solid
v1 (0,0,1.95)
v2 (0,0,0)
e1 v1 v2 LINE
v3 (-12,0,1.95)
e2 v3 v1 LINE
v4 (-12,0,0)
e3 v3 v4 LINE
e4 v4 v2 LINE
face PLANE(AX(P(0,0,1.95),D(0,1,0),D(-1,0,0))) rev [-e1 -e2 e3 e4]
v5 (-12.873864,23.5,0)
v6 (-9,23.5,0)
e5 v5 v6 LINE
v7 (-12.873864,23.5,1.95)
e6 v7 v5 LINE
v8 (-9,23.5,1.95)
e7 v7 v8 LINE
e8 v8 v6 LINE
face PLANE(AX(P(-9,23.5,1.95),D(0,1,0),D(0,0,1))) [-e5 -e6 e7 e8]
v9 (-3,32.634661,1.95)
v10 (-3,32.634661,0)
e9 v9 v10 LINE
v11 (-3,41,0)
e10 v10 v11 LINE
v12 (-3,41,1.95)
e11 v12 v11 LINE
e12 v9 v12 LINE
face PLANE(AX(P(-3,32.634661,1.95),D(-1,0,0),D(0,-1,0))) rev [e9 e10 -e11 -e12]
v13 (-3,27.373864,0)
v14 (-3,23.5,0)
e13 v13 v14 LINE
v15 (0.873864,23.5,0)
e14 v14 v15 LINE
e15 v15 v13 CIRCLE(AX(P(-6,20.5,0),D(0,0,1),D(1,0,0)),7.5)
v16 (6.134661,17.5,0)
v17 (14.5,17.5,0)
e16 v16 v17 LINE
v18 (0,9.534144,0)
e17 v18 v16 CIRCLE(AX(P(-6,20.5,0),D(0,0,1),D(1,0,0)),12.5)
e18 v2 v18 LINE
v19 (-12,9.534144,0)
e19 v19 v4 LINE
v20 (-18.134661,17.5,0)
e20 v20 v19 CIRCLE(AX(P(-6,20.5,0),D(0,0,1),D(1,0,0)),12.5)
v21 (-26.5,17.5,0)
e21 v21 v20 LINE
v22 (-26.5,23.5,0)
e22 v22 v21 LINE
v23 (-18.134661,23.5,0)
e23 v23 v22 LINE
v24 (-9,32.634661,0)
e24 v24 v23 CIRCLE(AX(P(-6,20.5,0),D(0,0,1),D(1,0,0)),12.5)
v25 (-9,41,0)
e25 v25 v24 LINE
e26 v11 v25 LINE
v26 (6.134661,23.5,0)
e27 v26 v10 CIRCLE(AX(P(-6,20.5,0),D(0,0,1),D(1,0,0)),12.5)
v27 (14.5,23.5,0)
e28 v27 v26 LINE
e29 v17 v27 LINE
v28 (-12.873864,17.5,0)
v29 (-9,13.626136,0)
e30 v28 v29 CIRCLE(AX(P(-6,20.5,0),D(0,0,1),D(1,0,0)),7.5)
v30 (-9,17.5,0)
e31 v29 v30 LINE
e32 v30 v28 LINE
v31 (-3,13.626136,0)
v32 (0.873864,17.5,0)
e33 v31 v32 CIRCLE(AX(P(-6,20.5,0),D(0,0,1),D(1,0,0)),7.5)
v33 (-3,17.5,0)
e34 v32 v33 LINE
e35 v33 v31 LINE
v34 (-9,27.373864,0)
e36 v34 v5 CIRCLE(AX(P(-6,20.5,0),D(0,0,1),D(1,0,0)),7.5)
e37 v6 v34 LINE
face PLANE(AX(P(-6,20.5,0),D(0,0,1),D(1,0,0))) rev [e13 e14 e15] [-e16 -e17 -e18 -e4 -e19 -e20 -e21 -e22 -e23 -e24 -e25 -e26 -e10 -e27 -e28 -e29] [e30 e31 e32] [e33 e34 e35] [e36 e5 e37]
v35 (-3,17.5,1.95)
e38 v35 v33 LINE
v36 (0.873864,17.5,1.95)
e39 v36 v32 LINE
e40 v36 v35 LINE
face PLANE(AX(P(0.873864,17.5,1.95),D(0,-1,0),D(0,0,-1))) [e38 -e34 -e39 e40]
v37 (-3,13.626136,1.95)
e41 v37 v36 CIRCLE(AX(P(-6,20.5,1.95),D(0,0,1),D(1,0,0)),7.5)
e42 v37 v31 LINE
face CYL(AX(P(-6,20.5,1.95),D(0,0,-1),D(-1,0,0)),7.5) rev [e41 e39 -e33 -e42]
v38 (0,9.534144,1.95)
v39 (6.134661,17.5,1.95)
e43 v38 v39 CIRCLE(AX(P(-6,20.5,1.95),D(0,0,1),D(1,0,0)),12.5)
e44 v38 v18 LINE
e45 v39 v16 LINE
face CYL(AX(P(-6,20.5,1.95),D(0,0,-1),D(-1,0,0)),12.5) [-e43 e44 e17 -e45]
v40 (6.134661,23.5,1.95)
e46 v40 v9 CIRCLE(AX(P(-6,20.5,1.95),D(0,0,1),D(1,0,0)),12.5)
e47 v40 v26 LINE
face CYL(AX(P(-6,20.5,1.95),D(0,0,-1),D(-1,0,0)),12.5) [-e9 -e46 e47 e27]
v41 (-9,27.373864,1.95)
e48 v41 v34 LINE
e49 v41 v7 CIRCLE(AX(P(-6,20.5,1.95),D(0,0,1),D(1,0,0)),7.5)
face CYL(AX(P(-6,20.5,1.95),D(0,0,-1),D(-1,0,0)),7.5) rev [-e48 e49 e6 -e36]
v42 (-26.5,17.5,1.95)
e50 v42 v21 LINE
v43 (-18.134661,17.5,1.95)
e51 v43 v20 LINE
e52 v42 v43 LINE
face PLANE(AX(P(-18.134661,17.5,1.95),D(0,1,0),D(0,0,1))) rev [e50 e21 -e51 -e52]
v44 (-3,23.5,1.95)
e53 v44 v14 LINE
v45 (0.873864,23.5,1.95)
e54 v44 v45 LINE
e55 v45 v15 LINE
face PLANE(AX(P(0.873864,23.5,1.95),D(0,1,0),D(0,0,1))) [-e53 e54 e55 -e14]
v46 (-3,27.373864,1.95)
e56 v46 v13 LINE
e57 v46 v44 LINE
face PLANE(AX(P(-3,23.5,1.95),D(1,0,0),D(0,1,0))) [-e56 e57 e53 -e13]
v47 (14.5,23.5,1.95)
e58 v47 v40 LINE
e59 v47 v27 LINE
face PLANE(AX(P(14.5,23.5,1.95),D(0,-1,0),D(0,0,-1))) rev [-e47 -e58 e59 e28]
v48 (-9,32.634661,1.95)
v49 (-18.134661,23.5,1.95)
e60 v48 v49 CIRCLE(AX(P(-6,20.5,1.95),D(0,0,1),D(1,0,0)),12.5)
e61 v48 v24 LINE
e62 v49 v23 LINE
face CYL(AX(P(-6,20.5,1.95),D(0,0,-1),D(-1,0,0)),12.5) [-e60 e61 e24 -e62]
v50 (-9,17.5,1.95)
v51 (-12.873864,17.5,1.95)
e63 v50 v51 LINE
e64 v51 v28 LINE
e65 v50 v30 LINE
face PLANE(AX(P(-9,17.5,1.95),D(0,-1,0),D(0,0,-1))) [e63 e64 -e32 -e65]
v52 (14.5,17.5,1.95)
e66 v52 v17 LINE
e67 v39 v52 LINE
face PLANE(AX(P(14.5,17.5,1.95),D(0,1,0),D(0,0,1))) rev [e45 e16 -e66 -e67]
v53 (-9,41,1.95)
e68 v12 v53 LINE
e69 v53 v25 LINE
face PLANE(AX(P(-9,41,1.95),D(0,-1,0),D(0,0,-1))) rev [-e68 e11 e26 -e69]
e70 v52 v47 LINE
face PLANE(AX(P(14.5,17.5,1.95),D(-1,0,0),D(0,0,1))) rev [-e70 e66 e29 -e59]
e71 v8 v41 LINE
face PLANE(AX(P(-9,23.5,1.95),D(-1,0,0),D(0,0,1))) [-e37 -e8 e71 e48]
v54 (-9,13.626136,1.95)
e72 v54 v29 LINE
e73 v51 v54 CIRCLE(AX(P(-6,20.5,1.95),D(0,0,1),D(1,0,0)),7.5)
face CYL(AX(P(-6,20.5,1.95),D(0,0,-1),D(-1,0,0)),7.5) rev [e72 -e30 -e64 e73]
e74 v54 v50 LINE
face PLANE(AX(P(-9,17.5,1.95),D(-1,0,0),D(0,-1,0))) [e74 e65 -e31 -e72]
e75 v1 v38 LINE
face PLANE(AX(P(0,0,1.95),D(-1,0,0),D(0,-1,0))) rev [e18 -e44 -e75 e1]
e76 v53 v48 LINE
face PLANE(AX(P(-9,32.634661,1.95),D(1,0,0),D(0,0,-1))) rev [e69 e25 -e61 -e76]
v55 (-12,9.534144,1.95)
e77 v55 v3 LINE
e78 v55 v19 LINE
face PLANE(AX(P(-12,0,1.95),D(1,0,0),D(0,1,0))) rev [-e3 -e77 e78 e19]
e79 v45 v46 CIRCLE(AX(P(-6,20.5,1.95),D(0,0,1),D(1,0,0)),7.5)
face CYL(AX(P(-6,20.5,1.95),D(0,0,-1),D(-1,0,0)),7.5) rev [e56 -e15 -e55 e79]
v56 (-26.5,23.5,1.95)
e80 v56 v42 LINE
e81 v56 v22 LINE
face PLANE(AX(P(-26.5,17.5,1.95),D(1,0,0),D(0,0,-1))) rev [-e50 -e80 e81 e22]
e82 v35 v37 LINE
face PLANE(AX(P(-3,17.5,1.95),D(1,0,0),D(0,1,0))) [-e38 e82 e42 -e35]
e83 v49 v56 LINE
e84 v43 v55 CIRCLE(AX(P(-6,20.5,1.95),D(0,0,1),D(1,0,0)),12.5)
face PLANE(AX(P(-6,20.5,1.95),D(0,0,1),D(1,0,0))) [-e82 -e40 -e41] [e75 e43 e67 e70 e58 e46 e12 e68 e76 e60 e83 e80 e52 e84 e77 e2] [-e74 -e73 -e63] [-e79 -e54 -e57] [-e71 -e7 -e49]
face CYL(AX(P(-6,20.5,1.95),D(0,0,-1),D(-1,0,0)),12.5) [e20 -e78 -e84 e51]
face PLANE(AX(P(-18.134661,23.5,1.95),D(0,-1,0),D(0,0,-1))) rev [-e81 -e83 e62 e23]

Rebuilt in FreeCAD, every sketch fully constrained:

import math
import FreeCAD as App
import Part
import Sketcher
from FreeCAD import Vector
Q = App.Units.Quantity


def add_polygon(sketch, points):
    """Adds a closed chain of lines whose ends are joined by coincident constraints."""
    first, n = sketch.GeometryCount, len(points)
    for a, b in zip(points, points[1:] + points[:1]):
        sketch.addGeometry(Part.LineSegment(App.Vector(*a, 0), App.Vector(*b, 0)), False)
    for i in range(n):
        sketch.addConstraint(Sketcher.Constraint("Coincident", first + i, 2, first + (i + 1) % n, 1))

doc = App.newDocument("Part")
body = doc.addObject("PartDesign::Body", "Body")

# Sketch on XY plane
sketch1 = body.newObject("Sketcher::SketchObject", "Sketch")
sketch1.AttachmentSupport = (doc.getObject("XY_Plane"), [""])
sketch1.MapMode = "FlatFace"
sketch1.addGeometry(Part.LineSegment(Vector(-12, 0, 0), Vector(0, 0, 0)), False)
sketch1.addGeometry(Part.LineSegment(Vector(0, 0, 0), Vector(0, 9.534144, 0)), False)
sketch1.addGeometry(Part.ArcOfCircle(Part.Circle(Vector(-6, 20.5, 0), Vector(0, 0, 1), 12.5), math.radians(-61.314598), math.radians(-13.88654)), False)
sketch1.addGeometry(Part.LineSegment(Vector(6.134661, 17.5, 0), Vector(14.5, 17.5, 0)), False)
sketch1.addGeometry(Part.LineSegment(Vector(14.5, 17.5, 0), Vector(14.5, 23.5, 0)), False)
sketch1.addGeometry(Part.LineSegment(Vector(14.5, 23.5, 0), Vector(6.134661, 23.5, 0)), False)
sketch1.addGeometry(Part.ArcOfCircle(Part.Circle(Vector(-6, 20.5, 0), Vector(0, 0, 1), 12.5), math.radians(13.88654), math.radians(76.11346)), False)
sketch1.addGeometry(Part.LineSegment(Vector(-3, 32.634661, 0), Vector(-3, 41, 0)), False)
sketch1.addGeometry(Part.LineSegment(Vector(-3, 41, 0), Vector(-9, 41, 0)), False)
sketch1.addGeometry(Part.LineSegment(Vector(-9, 41, 0), Vector(-9, 32.634661, 0)), False)
sketch1.addGeometry(Part.ArcOfCircle(Part.Circle(Vector(-6, 20.5, 0), Vector(0, 0, 1), 12.5), math.radians(103.88654), math.radians(166.11346)), False)
sketch1.addGeometry(Part.LineSegment(Vector(-18.134661, 23.5, 0), Vector(-26.5, 23.5, 0)), False)
sketch1.addGeometry(Part.LineSegment(Vector(-26.5, 23.5, 0), Vector(-26.5, 17.5, 0)), False)
sketch1.addGeometry(Part.LineSegment(Vector(-26.5, 17.5, 0), Vector(-18.134661, 17.5, 0)), False)
sketch1.addGeometry(Part.ArcOfCircle(Part.Circle(Vector(-6, 20.5, 0), Vector(0, 0, 1), 12.5), math.radians(-166.11346), math.radians(-118.685402)), False)
sketch1.addGeometry(Part.LineSegment(Vector(-12, 9.534144, 0), Vector(-12, 0, 0)), False)
sketch1.addGeometry(Part.LineSegment(Vector(-3, 17.5, 0), Vector(0.873864, 17.5, 0)), False)
sketch1.addGeometry(Part.ArcOfCircle(Part.Circle(Vector(-6, 20.5, 0), Vector(0, 0, 1), 7.5), math.radians(-66.421822), math.radians(-23.578178)), False)
sketch1.addGeometry(Part.LineSegment(Vector(-3, 13.626136, 0), Vector(-3, 17.5, 0)), False)
sketch1.addGeometry(Part.LineSegment(Vector(-9, 17.5, 0), Vector(-9, 13.626136, 0)), False)
sketch1.addGeometry(Part.ArcOfCircle(Part.Circle(Vector(-6, 20.5, 0), Vector(0, 0, 1), 7.5), math.radians(-156.421822), math.radians(-113.578178)), False)
sketch1.addGeometry(Part.LineSegment(Vector(-12.873864, 17.5, 0), Vector(-9, 17.5, 0)), False)
sketch1.addGeometry(Part.LineSegment(Vector(-3, 23.5, 0), Vector(-3, 27.373864, 0)), False)
sketch1.addGeometry(Part.ArcOfCircle(Part.Circle(Vector(-6, 20.5, 0), Vector(0, 0, 1), 7.5), math.radians(23.578178), math.radians(66.421822)), False)
sketch1.addGeometry(Part.LineSegment(Vector(0.873864, 23.5, 0), Vector(-3, 23.5, 0)), False)
sketch1.addGeometry(Part.LineSegment(Vector(-9, 23.5, 0), Vector(-12.873864, 23.5, 0)), False)
sketch1.addGeometry(Part.ArcOfCircle(Part.Circle(Vector(-6, 20.5, 0), Vector(0, 0, 1), 7.5), math.radians(113.578178), math.radians(156.421822)), False)
sketch1.addGeometry(Part.LineSegment(Vector(-9, 27.373864, 0), Vector(-9, 23.5, 0)), False)
sketch1.addConstraint(Sketcher.Constraint("Coincident", 0, 2, 1, 1))
sketch1.addConstraint(Sketcher.Constraint("Coincident", 1, 2, 2, 1))
sketch1.addConstraint(Sketcher.Constraint("Coincident", 2, 2, 3, 1))
sketch1.addConstraint(Sketcher.Constraint("Coincident", 3, 2, 4, 1))
sketch1.addConstraint(Sketcher.Constraint("Coincident", 4, 2, 5, 1))
sketch1.addConstraint(Sketcher.Constraint("Coincident", 5, 2, 6, 1))
sketch1.addConstraint(Sketcher.Constraint("Coincident", 6, 2, 7, 1))
sketch1.addConstraint(Sketcher.Constraint("Coincident", 7, 2, 8, 1))
sketch1.addConstraint(Sketcher.Constraint("Coincident", 8, 2, 9, 1))
sketch1.addConstraint(Sketcher.Constraint("Coincident", 9, 2, 10, 1))
sketch1.addConstraint(Sketcher.Constraint("Coincident", 10, 2, 11, 1))
sketch1.addConstraint(Sketcher.Constraint("Coincident", 11, 2, 12, 1))
sketch1.addConstraint(Sketcher.Constraint("Coincident", 12, 2, 13, 1))
sketch1.addConstraint(Sketcher.Constraint("Coincident", 13, 2, 14, 1))
sketch1.addConstraint(Sketcher.Constraint("Coincident", 14, 2, 15, 1))
sketch1.addConstraint(Sketcher.Constraint("Coincident", 15, 2, 0, 1))
sketch1.addConstraint(Sketcher.Constraint("Coincident", 16, 2, 17, 2))
sketch1.addConstraint(Sketcher.Constraint("Coincident", 17, 1, 18, 1))
sketch1.addConstraint(Sketcher.Constraint("Coincident", 18, 2, 16, 1))
sketch1.addConstraint(Sketcher.Constraint("Coincident", 19, 2, 20, 2))
sketch1.addConstraint(Sketcher.Constraint("Coincident", 20, 1, 21, 1))
sketch1.addConstraint(Sketcher.Constraint("Coincident", 21, 2, 19, 1))
sketch1.addConstraint(Sketcher.Constraint("Coincident", 22, 2, 23, 2))
sketch1.addConstraint(Sketcher.Constraint("Coincident", 23, 1, 24, 1))
sketch1.addConstraint(Sketcher.Constraint("Coincident", 24, 2, 22, 1))
sketch1.addConstraint(Sketcher.Constraint("Coincident", 25, 2, 26, 2))
sketch1.addConstraint(Sketcher.Constraint("Coincident", 26, 1, 27, 1))
sketch1.addConstraint(Sketcher.Constraint("Coincident", 27, 2, 25, 1))
sketch1.addConstraint(Sketcher.Constraint("Horizontal", 0))
sketch1.addConstraint(Sketcher.Constraint("Vertical", 1))
sketch1.addConstraint(Sketcher.Constraint("Horizontal", 3))
sketch1.addConstraint(Sketcher.Constraint("Vertical", 4))
sketch1.addConstraint(Sketcher.Constraint("Horizontal", 5))
sketch1.addConstraint(Sketcher.Constraint("Vertical", 7))
sketch1.addConstraint(Sketcher.Constraint("Horizontal", 8))
sketch1.addConstraint(Sketcher.Constraint("Vertical", 9))
sketch1.addConstraint(Sketcher.Constraint("Horizontal", 11))
sketch1.addConstraint(Sketcher.Constraint("Vertical", 12))
sketch1.addConstraint(Sketcher.Constraint("Horizontal", 13))
sketch1.addConstraint(Sketcher.Constraint("Vertical", 15))
sketch1.addConstraint(Sketcher.Constraint("Horizontal", 16))
sketch1.addConstraint(Sketcher.Constraint("Vertical", 18))
sketch1.addConstraint(Sketcher.Constraint("Vertical", 19))
sketch1.addConstraint(Sketcher.Constraint("Horizontal", 21))
sketch1.addConstraint(Sketcher.Constraint("Vertical", 22))
sketch1.addConstraint(Sketcher.Constraint("Horizontal", 24))
sketch1.addConstraint(Sketcher.Constraint("Horizontal", 25))
sketch1.addConstraint(Sketcher.Constraint("Vertical", 27))
sketch1.addConstraint(Sketcher.Constraint("Coincident", 0, 2, -1, 1))
sketch1.addConstraint(Sketcher.Constraint("Coincident", 6, 3, 2, 3))
sketch1.addConstraint(Sketcher.Constraint("Coincident", 10, 3, 2, 3))
sketch1.addConstraint(Sketcher.Constraint("Coincident", 14, 3, 2, 3))
sketch1.addConstraint(Sketcher.Constraint("Coincident", 17, 3, 2, 3))
sketch1.addConstraint(Sketcher.Constraint("Coincident", 20, 3, 2, 3))
sketch1.addConstraint(Sketcher.Constraint("Coincident", 23, 3, 2, 3))
sketch1.addConstraint(Sketcher.Constraint("Coincident", 26, 3, 2, 3))
sketch1.addConstraint(Sketcher.Constraint("Equal", 2, 6))
sketch1.addConstraint(Sketcher.Constraint("Equal", 6, 10))
sketch1.addConstraint(Sketcher.Constraint("Equal", 10, 14))
sketch1.addConstraint(Sketcher.Constraint("Equal", 17, 20))
sketch1.addConstraint(Sketcher.Constraint("Equal", 20, 23))
sketch1.addConstraint(Sketcher.Constraint("Equal", 23, 26))
sketch1.addConstraint(Sketcher.Constraint("Horizontal", 6, 2, 9, 2))
sketch1.addConstraint(Sketcher.Constraint("Horizontal", 5, 2, 10, 2))
sketch1.addConstraint(Sketcher.Constraint("Horizontal", 3, 2, 12, 2))
sketch1.addConstraint(Sketcher.Constraint("Horizontal", 1, 2, 14, 2))
sketch1.addConstraint(Sketcher.Constraint("Horizontal", 13, 2, 16, 2))
sketch1.addConstraint(Sketcher.Constraint("Horizontal", 17, 1, 19, 2))
sketch1.addConstraint(Sketcher.Constraint("Horizontal", 18, 2, 20, 1))
sketch1.addConstraint(Sketcher.Constraint("Horizontal", 11, 2, 23, 1))
sketch1.addConstraint(Sketcher.Constraint("Horizontal", 24, 2, 25, 2))
sketch1.addConstraint(Sketcher.Constraint("Horizontal", 22, 2, 26, 1))
sketch1.addConstraint(Sketcher.Constraint("Vertical", 2, 2, 5, 2))
sketch1.addConstraint(Sketcher.Constraint("Vertical", 7, 2, 17, 1))
sketch1.addConstraint(Sketcher.Constraint("Vertical", 18, 2, 22, 2))
sketch1.addConstraint(Sketcher.Constraint("Equal", 5, 11))
sketch1.addConstraint(Sketcher.Constraint("Equal", 8, 4))
sketch1.addConstraint(Sketcher.Constraint("Equal", 13, 7))
sketch1.addConstraint(Sketcher.Constraint("Radius", 2, Q("12.5 mm")))
sketch1.addConstraint(Sketcher.Constraint("Radius", 17, Q("7.5 mm")))
sketch1.addConstraint(Sketcher.Constraint("DistanceX", 0, 1, 0, 2, Q("12 mm")))
sketch1.addConstraint(Sketcher.Constraint("DistanceX", 8, 2, 8, 1, Q("6 mm")))
sketch1.addConstraint(Sketcher.Constraint("DistanceY", -1, 1, 7, 2, Q("41 mm")))
sketch1.addConstraint(Sketcher.Constraint("DistanceY", -1, 1, 2, 3, Q("20.5 mm")))
pad1 = body.newObject("PartDesign::Pad", "Pad")
pad1.Profile = sketch1
pad1.Length = 1.95

# Sketch on XY plane
sketch2 = body.newObject("Sketcher::SketchObject", "Sketch001")
sketch2.AttachmentSupport = (doc.getObject("XY_Plane"), [""])
sketch2.MapMode = "FlatFace"
sketch2.AttachmentOffset = App.Placement(Vector(0, 0, 4), App.Rotation())
add_polygon(sketch2, [(-10.6, 12), (-10.6, 0), (-1.4, 0), (-1.4, 12)])  # lines 0-3
sketch2.addConstraint(Sketcher.Constraint("Vertical", 0))
sketch2.addConstraint(Sketcher.Constraint("Horizontal", 1))
sketch2.addConstraint(Sketcher.Constraint("Vertical", 2))
sketch2.addConstraint(Sketcher.Constraint("Horizontal", 3))
sketch2.addConstraint(Sketcher.Constraint("PointOnObject", 0, 2, -1))
sketch2.addConstraint(Sketcher.Constraint("DistanceY", 0, 2, 0, 1, Q("12 mm")))
sketch2.addConstraint(Sketcher.Constraint("DistanceX", 1, 1, 1, 2, Q("9.2 mm")))
sketch2.addConstraint(Sketcher.Constraint("DistanceX", 0, 2, -1, 1, Q("10.6 mm")))
pocket1 = body.newObject("PartDesign::Pocket", "Pocket")
pocket1.Profile = sketch2
pocket1.Length = 2

doc.recompute()
